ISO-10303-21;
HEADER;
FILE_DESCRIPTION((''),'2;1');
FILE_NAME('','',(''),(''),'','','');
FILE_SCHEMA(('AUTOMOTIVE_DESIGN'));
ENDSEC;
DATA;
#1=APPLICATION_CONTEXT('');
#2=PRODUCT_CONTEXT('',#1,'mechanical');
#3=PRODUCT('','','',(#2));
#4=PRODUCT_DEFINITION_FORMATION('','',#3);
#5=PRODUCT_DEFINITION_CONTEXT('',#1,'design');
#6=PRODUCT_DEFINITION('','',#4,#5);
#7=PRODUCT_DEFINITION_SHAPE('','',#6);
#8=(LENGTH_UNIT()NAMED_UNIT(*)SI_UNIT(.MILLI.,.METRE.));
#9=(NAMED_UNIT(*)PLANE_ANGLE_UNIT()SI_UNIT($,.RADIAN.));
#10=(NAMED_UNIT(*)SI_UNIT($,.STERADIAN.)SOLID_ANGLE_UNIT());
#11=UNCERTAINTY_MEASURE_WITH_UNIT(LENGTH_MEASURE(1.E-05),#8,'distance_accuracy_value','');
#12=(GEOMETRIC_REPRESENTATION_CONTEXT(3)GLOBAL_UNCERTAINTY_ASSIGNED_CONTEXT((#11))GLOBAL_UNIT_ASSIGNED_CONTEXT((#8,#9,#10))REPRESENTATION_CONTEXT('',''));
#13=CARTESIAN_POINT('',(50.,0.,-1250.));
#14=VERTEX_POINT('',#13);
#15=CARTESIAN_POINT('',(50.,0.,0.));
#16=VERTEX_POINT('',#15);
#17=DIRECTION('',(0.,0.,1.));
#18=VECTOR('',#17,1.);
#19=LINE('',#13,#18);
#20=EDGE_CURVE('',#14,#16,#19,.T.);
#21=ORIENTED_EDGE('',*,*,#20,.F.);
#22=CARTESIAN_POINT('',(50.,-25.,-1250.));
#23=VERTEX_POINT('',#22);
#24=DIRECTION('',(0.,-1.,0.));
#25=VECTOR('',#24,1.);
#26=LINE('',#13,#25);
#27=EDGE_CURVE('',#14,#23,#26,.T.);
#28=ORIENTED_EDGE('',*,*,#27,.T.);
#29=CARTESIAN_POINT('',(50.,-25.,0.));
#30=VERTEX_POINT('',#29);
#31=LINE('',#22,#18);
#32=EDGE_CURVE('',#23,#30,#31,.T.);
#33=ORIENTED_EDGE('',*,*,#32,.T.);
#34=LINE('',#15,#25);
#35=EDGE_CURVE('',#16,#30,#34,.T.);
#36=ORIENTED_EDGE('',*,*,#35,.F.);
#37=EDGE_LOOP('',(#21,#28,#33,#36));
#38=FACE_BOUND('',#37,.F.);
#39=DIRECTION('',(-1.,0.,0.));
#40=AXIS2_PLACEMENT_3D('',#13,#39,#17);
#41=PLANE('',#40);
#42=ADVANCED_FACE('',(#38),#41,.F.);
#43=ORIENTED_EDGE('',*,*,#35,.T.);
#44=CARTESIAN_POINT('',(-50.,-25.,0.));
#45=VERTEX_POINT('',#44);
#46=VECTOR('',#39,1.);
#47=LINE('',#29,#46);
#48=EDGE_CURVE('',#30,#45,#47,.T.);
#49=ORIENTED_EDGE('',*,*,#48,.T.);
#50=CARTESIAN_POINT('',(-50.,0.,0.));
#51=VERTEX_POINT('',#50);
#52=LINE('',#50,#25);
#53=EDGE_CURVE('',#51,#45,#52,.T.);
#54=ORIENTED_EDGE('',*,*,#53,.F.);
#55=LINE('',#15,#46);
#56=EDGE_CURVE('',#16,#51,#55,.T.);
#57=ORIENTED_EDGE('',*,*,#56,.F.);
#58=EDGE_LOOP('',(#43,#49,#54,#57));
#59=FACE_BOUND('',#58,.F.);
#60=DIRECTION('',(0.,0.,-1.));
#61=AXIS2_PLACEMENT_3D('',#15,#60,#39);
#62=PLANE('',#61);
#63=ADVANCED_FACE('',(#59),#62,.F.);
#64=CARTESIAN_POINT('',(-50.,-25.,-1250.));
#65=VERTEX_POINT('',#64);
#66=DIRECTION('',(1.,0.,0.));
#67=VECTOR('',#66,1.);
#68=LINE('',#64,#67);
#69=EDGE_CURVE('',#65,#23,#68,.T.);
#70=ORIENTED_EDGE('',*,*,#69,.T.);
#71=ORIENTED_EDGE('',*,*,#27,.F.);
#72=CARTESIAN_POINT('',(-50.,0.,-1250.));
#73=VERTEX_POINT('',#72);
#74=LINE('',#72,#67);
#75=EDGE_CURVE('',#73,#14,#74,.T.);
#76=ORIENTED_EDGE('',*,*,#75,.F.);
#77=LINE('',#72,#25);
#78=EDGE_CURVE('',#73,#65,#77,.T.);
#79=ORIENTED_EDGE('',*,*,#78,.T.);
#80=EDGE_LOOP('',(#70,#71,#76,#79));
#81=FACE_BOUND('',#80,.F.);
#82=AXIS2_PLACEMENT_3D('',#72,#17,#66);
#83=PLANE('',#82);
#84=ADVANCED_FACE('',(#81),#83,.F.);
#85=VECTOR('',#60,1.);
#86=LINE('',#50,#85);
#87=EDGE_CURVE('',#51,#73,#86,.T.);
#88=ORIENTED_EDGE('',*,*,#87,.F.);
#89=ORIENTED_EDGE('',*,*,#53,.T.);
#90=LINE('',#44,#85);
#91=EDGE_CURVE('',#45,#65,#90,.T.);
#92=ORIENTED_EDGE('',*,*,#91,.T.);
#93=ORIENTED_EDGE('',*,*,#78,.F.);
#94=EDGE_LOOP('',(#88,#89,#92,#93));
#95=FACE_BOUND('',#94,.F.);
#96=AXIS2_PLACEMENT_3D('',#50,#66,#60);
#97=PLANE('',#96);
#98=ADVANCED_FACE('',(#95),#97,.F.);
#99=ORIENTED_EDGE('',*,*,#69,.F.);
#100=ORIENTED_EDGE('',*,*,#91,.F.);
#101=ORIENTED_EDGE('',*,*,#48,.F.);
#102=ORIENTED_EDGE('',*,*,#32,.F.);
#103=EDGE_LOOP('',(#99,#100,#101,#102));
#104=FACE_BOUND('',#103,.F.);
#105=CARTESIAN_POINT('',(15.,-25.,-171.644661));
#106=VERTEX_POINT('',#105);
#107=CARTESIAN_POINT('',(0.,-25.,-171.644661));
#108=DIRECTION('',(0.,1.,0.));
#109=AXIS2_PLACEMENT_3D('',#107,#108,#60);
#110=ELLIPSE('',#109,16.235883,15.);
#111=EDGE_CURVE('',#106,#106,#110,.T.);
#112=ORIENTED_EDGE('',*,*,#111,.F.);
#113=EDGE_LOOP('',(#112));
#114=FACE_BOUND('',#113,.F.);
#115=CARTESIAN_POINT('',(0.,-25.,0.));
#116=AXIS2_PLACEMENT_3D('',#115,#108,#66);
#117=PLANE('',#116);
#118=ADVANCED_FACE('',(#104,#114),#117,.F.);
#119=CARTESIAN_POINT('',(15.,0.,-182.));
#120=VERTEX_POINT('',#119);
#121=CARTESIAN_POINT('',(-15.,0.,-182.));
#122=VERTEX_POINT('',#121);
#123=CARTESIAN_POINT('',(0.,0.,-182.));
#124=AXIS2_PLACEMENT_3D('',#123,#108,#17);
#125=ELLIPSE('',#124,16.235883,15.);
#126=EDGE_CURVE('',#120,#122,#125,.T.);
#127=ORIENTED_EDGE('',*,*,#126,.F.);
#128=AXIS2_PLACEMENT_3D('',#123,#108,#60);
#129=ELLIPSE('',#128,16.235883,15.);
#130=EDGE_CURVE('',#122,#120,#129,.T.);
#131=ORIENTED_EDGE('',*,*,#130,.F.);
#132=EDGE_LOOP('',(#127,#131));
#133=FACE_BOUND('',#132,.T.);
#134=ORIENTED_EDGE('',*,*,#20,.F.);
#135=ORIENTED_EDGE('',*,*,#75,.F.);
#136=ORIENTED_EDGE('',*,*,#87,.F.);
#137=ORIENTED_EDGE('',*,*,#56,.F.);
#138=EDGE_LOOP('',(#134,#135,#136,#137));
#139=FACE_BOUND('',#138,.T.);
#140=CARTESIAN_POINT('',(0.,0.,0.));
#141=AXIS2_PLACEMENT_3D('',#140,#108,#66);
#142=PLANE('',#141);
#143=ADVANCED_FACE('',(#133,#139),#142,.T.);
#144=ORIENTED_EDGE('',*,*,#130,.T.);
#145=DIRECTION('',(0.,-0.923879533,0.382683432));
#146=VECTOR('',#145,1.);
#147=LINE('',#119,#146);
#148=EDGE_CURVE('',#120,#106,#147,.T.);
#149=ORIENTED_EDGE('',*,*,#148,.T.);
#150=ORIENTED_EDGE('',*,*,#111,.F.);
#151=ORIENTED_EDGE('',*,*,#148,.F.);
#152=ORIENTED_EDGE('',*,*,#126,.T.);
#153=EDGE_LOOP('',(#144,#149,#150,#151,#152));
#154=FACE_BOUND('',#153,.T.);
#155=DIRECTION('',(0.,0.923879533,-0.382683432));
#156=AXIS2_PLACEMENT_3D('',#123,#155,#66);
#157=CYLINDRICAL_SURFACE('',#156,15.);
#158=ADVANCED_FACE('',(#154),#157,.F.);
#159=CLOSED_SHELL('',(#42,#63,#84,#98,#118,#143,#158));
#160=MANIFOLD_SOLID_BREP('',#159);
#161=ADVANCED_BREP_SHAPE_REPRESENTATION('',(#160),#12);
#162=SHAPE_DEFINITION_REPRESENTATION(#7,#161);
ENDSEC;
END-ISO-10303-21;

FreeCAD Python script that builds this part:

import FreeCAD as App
import Part
import Sketcher
from FreeCAD import Vector
Q = App.Units.Quantity

doc = App.newDocument("Part")
body = doc.addObject("PartDesign::Body", "Body")

sketch1 = doc.addObject("Sketcher::SketchObject", "Sketch")
body.addObject(sketch1)
sketch1.AttachmentSupport = (doc.XZ_Plane, [""])
sketch1.MapMode = "FlatFace"
sketch1.addGeometry(Part.LineSegment(Vector(50, -1250, 0), Vector(-50, -1250, 0)), False)
sketch1.addGeometry(Part.LineSegment(Vector(-50, -1250, 0), Vector(-50, 0, 0)), False)
sketch1.addGeometry(Part.LineSegment(Vector(-50, 0, 0), Vector(50, 0, 0)), False)
sketch1.addGeometry(Part.LineSegment(Vector(50, 0, 0), Vector(50, -1250, 0)), False)
sketch1.addConstraint(Sketcher.Constraint("Coincident", 0, 2, 1, 1))
sketch1.addConstraint(Sketcher.Constraint("Coincident", 1, 2, 2, 1))
sketch1.addConstraint(Sketcher.Constraint("Coincident", 2, 2, 3, 1))
sketch1.addConstraint(Sketcher.Constraint("Coincident", 3, 2, 0, 1))
sketch1.addConstraint(Sketcher.Constraint("Horizontal", 0))
sketch1.addConstraint(Sketcher.Constraint("Vertical", 1))
sketch1.addConstraint(Sketcher.Constraint("Horizontal", 2))
sketch1.addConstraint(Sketcher.Constraint("Vertical", 3))
sketch1.addConstraint(Sketcher.Constraint("Symmetric", 1, 2, 2, 2, -1, 1))
sketch1.addConstraint(Sketcher.Constraint("DistanceX", 0, 2, 0, 1, Q("100 mm")))
sketch1.addConstraint(Sketcher.Constraint("DistanceY", 1, 1, 1, 2, Q("1250 mm")))
pad1 = doc.addObject("PartDesign::Pad", "Pad")
body.addObject(pad1)
pad1.Profile = sketch1
pad1.Length = 25

sketch2 = doc.addObject("Sketcher::SketchObject", "Sketch001")
body.addObject(sketch2)
sketch2.Placement = App.Placement(Vector(0, 0, -182), App.Rotation(Vector(1, 0, 0), Vector(0, 0.382683432, 0.923879533), Vector(0, -0.923879533, 0.382683432), "ZXY"))
sketch2.addGeometry(Part.Circle(Vector(0, 0, 0), Vector(0, 0, 1), 15), False)
sketch2.addConstraint(Sketcher.Constraint("Coincident", 0, 3, -1, 1))
sketch2.addConstraint(Sketcher.Constraint("Diameter", 0, Q("30 mm")))
pocket1 = doc.addObject("PartDesign::Pocket", "Pocket")
body.addObject(pocket1)
pocket1.Profile = sketch2
pocket1.Length = 80
pocket1.Midplane = True

doc.recompute()
